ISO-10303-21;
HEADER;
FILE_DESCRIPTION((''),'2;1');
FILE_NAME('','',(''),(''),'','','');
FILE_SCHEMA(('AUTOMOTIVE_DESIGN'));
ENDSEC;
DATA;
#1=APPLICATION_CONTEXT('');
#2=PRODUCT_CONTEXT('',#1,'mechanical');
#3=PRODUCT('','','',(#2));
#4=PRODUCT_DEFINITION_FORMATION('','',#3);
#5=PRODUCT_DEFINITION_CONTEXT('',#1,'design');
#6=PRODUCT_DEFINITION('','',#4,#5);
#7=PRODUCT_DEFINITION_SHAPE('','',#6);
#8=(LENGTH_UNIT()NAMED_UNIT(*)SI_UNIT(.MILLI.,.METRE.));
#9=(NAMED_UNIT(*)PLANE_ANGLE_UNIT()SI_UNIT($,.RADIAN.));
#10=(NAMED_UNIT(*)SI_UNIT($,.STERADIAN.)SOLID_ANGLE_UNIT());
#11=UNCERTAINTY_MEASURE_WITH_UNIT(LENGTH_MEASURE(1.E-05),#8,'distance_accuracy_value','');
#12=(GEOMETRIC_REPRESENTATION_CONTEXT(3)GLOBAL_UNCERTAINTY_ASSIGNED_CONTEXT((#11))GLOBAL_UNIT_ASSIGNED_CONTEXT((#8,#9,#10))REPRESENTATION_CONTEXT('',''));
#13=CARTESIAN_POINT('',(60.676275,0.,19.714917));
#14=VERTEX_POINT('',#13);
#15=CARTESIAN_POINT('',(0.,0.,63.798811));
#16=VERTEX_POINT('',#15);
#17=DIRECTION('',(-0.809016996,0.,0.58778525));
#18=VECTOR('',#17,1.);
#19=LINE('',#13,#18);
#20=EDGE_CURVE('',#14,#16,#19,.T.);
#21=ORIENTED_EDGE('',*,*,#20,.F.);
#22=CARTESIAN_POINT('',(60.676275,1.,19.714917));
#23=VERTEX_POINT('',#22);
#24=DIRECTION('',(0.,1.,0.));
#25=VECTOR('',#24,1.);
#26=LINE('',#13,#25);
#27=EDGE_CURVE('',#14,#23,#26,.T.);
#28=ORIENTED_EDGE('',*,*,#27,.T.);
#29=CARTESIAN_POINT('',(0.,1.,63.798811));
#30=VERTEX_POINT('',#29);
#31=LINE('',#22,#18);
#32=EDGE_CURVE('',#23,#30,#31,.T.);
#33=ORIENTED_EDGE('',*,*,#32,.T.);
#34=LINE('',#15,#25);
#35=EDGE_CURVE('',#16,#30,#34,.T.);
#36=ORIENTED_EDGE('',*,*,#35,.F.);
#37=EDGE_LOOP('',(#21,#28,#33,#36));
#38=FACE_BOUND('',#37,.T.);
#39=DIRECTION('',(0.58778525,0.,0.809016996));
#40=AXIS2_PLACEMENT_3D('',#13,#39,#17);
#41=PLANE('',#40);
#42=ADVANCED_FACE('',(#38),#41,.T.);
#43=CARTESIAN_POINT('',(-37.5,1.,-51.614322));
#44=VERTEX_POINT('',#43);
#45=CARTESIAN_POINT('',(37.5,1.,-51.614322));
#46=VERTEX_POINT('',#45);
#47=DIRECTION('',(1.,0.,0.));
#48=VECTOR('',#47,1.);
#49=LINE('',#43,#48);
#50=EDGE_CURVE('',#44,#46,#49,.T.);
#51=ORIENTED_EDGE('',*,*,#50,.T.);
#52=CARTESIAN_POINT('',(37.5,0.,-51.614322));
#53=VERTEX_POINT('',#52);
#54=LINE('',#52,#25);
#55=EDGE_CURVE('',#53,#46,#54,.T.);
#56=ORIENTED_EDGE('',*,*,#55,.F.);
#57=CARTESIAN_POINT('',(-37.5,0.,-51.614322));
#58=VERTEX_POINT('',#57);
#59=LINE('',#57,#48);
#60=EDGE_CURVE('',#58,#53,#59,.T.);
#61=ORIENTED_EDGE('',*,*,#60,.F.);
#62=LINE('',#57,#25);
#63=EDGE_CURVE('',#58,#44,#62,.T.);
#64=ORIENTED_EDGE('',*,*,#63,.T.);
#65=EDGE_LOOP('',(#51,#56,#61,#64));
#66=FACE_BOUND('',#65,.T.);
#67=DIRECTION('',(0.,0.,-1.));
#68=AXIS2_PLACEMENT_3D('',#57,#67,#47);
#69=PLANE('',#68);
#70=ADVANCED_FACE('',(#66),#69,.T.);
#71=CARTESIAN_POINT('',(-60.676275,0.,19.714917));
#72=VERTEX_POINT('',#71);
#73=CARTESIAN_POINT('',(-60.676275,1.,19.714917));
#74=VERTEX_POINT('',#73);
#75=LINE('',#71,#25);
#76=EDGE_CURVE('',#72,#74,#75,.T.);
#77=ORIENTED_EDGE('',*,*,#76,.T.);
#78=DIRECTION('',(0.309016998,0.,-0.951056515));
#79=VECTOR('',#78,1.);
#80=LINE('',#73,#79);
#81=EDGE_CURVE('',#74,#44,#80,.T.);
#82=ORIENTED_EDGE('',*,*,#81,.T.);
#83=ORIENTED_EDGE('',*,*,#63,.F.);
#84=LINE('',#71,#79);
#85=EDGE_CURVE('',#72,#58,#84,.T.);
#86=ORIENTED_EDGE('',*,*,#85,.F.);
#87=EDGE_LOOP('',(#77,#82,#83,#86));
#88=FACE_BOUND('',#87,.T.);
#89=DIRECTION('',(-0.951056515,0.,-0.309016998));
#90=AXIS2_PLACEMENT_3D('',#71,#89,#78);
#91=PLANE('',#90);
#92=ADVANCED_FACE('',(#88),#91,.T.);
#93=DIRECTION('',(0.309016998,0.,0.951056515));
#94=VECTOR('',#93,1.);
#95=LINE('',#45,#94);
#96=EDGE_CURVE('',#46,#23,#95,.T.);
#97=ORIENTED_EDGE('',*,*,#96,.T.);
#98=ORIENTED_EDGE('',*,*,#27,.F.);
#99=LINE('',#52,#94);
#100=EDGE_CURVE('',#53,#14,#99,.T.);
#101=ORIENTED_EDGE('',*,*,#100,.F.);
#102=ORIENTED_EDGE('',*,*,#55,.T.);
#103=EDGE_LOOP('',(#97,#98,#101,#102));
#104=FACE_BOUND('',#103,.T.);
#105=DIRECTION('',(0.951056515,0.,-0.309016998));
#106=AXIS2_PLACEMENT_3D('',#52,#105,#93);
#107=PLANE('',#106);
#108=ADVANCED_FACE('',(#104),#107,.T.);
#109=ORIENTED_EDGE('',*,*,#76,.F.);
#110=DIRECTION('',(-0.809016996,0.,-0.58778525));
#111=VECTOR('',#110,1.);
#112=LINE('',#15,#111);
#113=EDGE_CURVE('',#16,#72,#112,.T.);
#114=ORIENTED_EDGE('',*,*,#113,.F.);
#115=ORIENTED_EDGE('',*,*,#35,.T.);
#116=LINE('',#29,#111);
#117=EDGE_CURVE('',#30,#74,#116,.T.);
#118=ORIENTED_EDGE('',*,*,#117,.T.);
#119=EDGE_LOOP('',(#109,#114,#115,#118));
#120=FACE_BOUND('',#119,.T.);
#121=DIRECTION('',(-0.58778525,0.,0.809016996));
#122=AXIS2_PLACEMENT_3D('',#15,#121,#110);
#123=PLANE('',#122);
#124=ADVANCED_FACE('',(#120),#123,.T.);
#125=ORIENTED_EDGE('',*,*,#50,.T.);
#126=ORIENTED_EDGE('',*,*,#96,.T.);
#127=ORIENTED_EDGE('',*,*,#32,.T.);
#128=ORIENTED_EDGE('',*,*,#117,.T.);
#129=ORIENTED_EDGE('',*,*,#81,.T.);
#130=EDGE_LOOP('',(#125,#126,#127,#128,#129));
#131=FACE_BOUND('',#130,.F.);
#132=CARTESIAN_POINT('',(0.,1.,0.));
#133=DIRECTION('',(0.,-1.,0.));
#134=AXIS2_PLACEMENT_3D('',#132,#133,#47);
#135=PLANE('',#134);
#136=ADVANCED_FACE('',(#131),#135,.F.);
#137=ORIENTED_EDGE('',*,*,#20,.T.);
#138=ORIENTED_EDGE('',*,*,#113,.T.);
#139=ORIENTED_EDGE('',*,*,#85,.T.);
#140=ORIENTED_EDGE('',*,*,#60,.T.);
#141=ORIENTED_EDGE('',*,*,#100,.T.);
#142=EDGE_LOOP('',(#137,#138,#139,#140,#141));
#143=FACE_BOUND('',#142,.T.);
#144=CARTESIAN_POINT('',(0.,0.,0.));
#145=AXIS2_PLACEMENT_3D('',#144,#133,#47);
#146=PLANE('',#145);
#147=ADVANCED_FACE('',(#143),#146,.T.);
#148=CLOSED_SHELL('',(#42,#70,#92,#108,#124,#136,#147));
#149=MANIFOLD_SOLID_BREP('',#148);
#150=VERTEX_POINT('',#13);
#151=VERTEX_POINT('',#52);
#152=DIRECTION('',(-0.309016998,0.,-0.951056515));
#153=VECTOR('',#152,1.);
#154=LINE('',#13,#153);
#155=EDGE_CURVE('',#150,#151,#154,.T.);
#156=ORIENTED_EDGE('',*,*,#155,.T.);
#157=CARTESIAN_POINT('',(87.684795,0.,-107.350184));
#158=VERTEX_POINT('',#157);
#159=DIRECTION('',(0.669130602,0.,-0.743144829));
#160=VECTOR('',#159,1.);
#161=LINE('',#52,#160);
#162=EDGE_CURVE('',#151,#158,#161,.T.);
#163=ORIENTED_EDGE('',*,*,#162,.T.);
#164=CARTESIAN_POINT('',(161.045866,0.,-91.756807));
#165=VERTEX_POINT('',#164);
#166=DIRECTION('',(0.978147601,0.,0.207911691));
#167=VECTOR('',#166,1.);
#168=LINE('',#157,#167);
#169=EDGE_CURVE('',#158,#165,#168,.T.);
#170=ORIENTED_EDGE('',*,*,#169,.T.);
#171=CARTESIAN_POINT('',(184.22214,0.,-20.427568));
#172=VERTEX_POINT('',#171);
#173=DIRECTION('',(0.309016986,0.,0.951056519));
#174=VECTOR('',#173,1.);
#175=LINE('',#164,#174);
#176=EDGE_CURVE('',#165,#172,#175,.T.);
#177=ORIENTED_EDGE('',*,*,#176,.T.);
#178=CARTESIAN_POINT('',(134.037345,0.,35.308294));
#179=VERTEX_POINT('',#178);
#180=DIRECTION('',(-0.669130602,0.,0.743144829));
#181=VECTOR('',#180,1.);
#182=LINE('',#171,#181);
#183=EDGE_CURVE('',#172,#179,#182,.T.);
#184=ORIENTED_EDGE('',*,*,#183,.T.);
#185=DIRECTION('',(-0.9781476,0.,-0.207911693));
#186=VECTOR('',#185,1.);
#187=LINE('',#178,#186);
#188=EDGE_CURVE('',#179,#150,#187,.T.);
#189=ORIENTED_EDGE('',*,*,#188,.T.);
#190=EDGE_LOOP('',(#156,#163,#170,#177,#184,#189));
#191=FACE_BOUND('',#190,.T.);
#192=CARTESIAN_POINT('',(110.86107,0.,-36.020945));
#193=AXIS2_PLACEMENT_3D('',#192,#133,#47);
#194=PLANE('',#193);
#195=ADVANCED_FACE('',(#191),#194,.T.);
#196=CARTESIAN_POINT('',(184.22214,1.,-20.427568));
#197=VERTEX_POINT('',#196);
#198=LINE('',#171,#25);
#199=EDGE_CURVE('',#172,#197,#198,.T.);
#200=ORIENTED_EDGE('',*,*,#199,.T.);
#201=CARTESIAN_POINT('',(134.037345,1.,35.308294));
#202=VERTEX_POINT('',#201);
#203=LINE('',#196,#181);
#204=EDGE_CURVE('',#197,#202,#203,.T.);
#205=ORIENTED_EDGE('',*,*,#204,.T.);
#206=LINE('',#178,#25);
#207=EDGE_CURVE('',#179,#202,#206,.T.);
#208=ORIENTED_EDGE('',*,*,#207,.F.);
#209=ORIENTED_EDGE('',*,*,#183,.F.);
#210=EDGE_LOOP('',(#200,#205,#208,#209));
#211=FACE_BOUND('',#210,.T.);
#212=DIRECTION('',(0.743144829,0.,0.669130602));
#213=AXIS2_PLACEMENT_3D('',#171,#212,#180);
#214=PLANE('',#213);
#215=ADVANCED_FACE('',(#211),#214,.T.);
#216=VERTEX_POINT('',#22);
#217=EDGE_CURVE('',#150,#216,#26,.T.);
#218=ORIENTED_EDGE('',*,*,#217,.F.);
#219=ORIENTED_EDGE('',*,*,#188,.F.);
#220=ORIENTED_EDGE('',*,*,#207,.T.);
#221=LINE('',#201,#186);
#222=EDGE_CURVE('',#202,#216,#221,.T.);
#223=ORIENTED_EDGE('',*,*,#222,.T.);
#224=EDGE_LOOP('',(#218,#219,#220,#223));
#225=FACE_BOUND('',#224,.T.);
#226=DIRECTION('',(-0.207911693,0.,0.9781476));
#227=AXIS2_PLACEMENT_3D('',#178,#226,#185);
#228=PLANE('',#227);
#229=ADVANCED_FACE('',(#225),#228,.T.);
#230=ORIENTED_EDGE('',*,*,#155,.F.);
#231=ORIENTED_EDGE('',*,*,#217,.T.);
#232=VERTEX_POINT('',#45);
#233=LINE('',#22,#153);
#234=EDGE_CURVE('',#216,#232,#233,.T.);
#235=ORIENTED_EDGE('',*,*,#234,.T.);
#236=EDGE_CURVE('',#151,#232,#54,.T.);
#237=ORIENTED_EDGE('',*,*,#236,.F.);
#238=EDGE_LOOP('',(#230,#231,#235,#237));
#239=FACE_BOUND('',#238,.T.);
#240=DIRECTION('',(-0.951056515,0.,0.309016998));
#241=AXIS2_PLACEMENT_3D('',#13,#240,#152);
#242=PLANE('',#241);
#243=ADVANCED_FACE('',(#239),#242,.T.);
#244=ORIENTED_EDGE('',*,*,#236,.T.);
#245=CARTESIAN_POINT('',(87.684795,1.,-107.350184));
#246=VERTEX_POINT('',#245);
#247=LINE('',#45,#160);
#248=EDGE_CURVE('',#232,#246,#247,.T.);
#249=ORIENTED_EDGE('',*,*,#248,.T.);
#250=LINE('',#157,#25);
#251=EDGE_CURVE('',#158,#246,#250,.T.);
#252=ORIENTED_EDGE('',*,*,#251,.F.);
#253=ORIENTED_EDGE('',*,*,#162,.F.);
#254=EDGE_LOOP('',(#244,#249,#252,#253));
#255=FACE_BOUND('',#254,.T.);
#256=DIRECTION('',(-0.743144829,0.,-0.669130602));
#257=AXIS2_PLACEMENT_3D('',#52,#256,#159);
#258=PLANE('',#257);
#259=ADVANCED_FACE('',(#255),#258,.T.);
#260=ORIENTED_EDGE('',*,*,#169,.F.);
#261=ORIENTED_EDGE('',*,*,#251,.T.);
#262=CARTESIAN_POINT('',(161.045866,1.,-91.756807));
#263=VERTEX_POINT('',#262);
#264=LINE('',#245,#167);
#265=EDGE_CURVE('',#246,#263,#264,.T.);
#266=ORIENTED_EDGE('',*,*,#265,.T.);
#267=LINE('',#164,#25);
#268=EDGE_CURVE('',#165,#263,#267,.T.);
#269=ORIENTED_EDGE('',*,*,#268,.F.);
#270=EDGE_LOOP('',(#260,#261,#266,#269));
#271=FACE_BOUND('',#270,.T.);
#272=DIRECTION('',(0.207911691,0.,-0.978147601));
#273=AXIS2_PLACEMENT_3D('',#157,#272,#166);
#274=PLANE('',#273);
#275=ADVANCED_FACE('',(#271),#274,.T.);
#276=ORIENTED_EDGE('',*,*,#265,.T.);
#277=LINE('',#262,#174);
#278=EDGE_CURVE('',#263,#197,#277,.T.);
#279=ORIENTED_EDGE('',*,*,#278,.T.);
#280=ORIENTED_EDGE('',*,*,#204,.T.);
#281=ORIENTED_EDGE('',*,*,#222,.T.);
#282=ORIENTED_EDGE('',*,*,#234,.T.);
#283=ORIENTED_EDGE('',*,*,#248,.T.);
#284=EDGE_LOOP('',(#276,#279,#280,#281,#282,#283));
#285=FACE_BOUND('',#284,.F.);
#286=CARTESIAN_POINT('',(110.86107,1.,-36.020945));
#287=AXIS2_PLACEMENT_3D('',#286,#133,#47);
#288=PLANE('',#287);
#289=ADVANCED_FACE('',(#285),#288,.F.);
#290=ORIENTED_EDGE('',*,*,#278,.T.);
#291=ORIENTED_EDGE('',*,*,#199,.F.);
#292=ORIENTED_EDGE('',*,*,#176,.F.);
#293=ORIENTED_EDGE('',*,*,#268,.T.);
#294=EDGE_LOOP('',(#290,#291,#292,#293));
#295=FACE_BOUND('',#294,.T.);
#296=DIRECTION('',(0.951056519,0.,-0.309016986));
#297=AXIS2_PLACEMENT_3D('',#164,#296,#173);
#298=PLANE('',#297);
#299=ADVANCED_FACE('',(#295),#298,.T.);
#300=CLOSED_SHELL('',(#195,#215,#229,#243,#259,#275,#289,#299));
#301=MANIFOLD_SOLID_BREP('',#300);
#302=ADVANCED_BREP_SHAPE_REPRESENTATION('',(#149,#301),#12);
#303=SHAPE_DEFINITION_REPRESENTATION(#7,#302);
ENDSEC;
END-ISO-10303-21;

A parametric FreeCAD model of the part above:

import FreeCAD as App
import Part
import Sketcher

V = App.Vector
Q = App.Units.Quantity

doc = App.newDocument("Part")
body = doc.addObject("PartDesign::Body", "Body")

# Sketch on XZ plane
sketch1 = body.newObject("Sketcher::SketchObject", "Sketch")
sketch1.AttachmentSupport = (doc.getObject("XZ_Plane"), [""])
sketch1.MapMode = "FlatFace"
sketch1.addGeometry(Part.LineSegment(V(-38, -52, 0), V(38, -52, 0)), False)
sketch1.addGeometry(Part.LineSegment(V(38, -52, 0), V(61, 20, 0)), False)
sketch1.addGeometry(Part.LineSegment(V(61, 20, 0), V(0, 64, 0)), False)
sketch1.addGeometry(Part.LineSegment(V(0, 64, 0), V(-61, 20, 0)), False)
sketch1.addGeometry(Part.LineSegment(V(-61, 20, 0), V(-38, -52, 0)), False)
sketch1.addConstraint(Sketcher.Constraint("Coincident", 0, 2, 1, 1))
sketch1.addConstraint(Sketcher.Constraint("Coincident", 1, 2, 2, 1))
sketch1.addConstraint(Sketcher.Constraint("Coincident", 2, 2, 3, 1))
sketch1.addConstraint(Sketcher.Constraint("Coincident", 3, 2, 4, 1))
sketch1.addConstraint(Sketcher.Constraint("Coincident", 4, 2, 0, 1))
sketch1.addConstraint(Sketcher.Constraint("Horizontal", 0))
sketch1.addConstraint(Sketcher.Constraint("Symmetric", 1, 2, 3, 2, -2))
sketch1.addConstraint(Sketcher.Constraint("PointOnObject", 2, 2, -2))
sketch1.addConstraint(Sketcher.Constraint("Equal", 1, 2))
sketch1.addConstraint(Sketcher.Constraint("Equal", 3, 4))
sketch1.addConstraint(Sketcher.Constraint("DistanceX", 0, 1, 0, 2, Q("75 mm")))
sketch1.addConstraint(Sketcher.Constraint("Angle", 1, Q("72 deg")))
sketch1.addConstraint(Sketcher.Constraint("Angle", 2, Q("144 deg")))
sketch1.addConstraint(Sketcher.Constraint("DistanceY", -1, 1, 2, 2, Q("63.798811 mm")))
pad1 = body.newObject("PartDesign::Pad", "Pad")
pad1.Profile = sketch1
pad1.Length = 1
pad1.Reversed = True
body2 = doc.addObject("PartDesign::Body", "Body001")

# Sketch on XZ plane
sketch2 = body2.newObject("Sketcher::SketchObject", "Sketch001")
sketch2.AttachmentSupport = (doc.getObject("XZ_Plane001"), [""])
sketch2.MapMode = "FlatFace"
sketch2.addGeometry(Part.LineSegment(V(61, 20, 0), V(38, -52, 0)), False)
sketch2.addGeometry(Part.LineSegment(V(38, -52, 0), V(88, -107, 0)), False)
sketch2.addGeometry(Part.LineSegment(V(88, -107, 0), V(161, -92, 0)), False)
sketch2.addGeometry(Part.LineSegment(V(161, -92, 0), V(184, -20, 0)), False)
sketch2.addGeometry(Part.LineSegment(V(184, -20, 0), V(134, 35, 0)), False)
sketch2.addGeometry(Part.LineSegment(V(134, 35, 0), V(61, 20, 0)), False)
sketch2.addConstraint(Sketcher.Constraint("Coincident", 0, 2, 1, 1))
sketch2.addConstraint(Sketcher.Constraint("Coincident", 1, 2, 2, 1))
sketch2.addConstraint(Sketcher.Constraint("Coincident", 2, 2, 3, 1))
sketch2.addConstraint(Sketcher.Constraint("Coincident", 3, 2, 4, 1))
sketch2.addConstraint(Sketcher.Constraint("Coincident", 4, 2, 5, 1))
sketch2.addConstraint(Sketcher.Constraint("Coincident", 5, 2, 0, 1))
sketch2.addConstraint(Sketcher.Constraint("Parallel", 0, 3))
sketch2.addConstraint(Sketcher.Constraint("Parallel", 1, 4))
sketch2.addConstraint(Sketcher.Constraint("Parallel", 2, 5))
sketch2.addConstraint(Sketcher.Constraint("Equal", 0, 1))
sketch2.addConstraint(Sketcher.Constraint("Equal", 1, 2))
sketch2.addConstraint(Sketcher.Constraint("Equal", 2, 3))
sketch2.addConstraint(Sketcher.Constraint("Angle", 0, Q("-108 deg")))
sketch2.addConstraint(Sketcher.Constraint("Angle", 1, Q("-48 deg")))
sketch2.addConstraint(Sketcher.Constraint("Angle", 2, Q("12 deg")))
sketch2.addConstraint(Sketcher.Constraint("Distance", 0, Q("75 mm")))
sketch2.addConstraint(Sketcher.Constraint("DistanceX", -1, 1, 0, 2, Q("37.5 mm")))
sketch2.addConstraint(Sketcher.Constraint("DistanceY", 3, 2, -1, 1, Q("20.427568 mm")))
pad2 = body2.newObject("PartDesign::Pad", "Pad001")
pad2.Profile = sketch2
pad2.Length = 1
pad2.Reversed = True

doc.recompute()
